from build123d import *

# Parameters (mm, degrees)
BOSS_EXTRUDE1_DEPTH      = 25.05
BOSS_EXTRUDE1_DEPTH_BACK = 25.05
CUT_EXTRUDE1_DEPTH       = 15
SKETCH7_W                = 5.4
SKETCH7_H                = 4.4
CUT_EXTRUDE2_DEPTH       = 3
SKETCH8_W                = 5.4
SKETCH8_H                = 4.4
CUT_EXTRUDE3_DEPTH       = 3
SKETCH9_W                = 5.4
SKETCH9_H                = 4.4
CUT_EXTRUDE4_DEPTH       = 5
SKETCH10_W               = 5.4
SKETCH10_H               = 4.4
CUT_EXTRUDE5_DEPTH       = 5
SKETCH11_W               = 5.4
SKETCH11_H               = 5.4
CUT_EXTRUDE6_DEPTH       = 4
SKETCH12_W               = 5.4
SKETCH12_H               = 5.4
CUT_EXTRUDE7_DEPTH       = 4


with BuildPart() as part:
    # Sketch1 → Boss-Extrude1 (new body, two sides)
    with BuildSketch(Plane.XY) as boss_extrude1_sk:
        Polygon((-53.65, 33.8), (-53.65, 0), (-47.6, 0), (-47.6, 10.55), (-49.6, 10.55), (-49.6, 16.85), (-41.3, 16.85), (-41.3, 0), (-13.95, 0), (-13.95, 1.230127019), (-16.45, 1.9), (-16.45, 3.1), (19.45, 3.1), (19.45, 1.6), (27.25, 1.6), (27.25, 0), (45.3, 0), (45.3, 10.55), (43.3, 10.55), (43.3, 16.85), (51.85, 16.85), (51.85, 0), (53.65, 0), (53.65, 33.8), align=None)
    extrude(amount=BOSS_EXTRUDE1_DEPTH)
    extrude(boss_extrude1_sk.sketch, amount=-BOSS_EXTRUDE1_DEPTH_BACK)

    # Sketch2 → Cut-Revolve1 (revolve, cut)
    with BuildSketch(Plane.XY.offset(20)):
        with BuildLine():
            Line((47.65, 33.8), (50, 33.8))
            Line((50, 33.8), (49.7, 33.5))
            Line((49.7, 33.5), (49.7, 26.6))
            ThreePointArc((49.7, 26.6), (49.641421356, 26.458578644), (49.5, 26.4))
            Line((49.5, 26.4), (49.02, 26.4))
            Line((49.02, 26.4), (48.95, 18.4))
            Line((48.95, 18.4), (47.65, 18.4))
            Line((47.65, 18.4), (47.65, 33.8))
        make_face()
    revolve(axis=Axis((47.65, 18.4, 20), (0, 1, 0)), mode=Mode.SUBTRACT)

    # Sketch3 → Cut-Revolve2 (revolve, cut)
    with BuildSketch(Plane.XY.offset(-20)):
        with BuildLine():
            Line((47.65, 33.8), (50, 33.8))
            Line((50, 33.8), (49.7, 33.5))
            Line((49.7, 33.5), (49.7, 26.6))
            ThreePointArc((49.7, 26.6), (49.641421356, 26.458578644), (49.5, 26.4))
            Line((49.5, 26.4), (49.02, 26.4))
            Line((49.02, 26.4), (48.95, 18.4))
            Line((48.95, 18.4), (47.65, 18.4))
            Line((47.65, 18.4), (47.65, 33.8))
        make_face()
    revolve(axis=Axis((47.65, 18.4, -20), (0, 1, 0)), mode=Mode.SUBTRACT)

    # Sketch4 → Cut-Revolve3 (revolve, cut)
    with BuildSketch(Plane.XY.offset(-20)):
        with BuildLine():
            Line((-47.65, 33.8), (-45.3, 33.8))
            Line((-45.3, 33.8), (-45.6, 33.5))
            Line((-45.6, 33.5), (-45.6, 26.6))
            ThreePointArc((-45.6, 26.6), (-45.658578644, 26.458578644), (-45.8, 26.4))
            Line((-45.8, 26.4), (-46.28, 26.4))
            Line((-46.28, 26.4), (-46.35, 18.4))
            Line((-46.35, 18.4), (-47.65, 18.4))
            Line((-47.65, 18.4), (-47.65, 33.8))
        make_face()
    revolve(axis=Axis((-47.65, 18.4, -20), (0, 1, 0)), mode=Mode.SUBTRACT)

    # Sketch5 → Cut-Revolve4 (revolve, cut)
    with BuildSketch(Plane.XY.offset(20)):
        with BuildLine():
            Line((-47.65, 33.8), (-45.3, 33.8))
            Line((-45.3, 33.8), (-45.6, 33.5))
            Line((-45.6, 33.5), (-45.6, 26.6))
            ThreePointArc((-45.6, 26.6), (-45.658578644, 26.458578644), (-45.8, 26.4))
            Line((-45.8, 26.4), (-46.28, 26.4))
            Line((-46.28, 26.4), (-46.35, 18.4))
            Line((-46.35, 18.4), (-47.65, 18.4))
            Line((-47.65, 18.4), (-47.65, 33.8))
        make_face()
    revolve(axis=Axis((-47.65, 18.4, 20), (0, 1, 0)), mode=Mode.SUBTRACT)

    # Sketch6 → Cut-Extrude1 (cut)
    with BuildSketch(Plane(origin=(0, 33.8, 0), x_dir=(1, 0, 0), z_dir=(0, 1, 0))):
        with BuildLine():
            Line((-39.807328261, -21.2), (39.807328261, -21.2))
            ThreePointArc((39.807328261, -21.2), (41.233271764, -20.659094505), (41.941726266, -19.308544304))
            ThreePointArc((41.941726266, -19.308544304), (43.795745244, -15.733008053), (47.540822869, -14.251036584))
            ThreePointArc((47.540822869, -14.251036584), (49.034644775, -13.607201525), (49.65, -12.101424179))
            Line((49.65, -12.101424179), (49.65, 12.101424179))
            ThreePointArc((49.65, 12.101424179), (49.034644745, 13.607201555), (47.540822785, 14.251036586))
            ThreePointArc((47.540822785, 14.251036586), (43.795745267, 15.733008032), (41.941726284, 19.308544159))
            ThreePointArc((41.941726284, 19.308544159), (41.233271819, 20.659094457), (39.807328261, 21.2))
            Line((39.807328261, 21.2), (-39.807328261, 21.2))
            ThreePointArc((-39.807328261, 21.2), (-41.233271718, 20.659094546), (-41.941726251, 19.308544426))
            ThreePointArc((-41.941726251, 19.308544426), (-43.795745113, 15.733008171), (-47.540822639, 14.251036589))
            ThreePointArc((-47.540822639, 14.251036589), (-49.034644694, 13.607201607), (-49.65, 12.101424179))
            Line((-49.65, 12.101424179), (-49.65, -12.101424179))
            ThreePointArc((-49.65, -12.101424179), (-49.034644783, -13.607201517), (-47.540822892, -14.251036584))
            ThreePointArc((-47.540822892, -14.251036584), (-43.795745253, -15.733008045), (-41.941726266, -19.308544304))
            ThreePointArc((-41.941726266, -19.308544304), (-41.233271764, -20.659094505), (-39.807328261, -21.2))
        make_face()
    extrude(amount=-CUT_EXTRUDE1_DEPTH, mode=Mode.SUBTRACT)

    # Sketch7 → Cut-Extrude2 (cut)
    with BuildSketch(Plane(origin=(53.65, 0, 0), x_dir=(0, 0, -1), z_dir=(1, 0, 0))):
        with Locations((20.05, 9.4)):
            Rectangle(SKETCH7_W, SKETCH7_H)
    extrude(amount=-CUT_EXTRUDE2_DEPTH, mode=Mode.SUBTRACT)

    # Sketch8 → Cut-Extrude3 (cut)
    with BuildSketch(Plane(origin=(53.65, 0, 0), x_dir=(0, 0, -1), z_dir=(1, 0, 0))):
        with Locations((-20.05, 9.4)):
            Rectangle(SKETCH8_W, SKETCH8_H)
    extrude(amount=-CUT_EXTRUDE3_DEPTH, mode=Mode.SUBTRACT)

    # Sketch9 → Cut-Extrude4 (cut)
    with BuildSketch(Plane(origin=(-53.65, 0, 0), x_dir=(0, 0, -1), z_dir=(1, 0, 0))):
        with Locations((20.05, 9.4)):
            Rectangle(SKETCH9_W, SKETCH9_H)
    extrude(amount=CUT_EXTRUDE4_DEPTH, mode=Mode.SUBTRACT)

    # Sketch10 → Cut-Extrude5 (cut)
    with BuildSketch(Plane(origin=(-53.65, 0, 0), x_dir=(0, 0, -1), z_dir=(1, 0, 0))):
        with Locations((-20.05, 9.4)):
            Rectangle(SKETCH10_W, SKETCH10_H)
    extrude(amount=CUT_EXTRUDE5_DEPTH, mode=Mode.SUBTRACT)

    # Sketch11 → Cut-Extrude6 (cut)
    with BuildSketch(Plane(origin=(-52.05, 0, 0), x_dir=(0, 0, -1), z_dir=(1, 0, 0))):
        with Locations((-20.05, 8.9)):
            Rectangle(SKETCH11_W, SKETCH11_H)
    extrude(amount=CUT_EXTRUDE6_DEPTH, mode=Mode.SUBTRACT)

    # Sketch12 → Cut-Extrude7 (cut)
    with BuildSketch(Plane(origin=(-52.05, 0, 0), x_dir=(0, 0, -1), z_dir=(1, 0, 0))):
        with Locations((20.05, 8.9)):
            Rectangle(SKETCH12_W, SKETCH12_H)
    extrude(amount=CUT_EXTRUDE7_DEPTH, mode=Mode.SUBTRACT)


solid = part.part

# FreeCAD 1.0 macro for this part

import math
import FreeCAD as App
import Part
import Sketcher

V = App.Vector
Q = App.Units.Quantity

doc = App.newDocument("Part")
body = doc.addObject("PartDesign::Body", "Body")

# Sketch on XY plane
sketch1 = body.newObject("Sketcher::SketchObject", "Sketch")
sketch1.AttachmentSupport = (doc.getObject("XY_Plane"), [""])
sketch1.MapMode = "FlatFace"
sketch1.addGeometry([
    Part.LineSegment(V(-53.6, 33.8, 0), V(-53.6, 0, 0)),  # 0
    Part.LineSegment(V(-53.6, 0, 0), V(-47.6, 0, 0)),  # 1
    Part.LineSegment(V(-47.6, 0, 0), V(-47.6, 10.6, 0)),  # 2
    Part.LineSegment(V(-47.6, 10.6, 0), V(-49.6, 10.6, 0)),  # 3
    Part.LineSegment(V(-49.6, 10.6, 0), V(-49.6, 16.9, 0)),  # 4
    Part.LineSegment(V(-49.6, 16.9, 0), V(-41.3, 16.9, 0)),  # 5
    Part.LineSegment(V(-41.3, 16.9, 0), V(-41.3, 0, 0)),  # 6
    Part.LineSegment(V(-41.3, 0, 0), V(-13.9, 0, 0)),  # 7
    Part.LineSegment(V(-13.9, 0, 0), V(-13.9, 1.2, 0)),  # 8
    Part.LineSegment(V(-13.9, 1.2, 0), V(-16.4, 1.9, 0)),  # 9
    Part.LineSegment(V(-16.4, 1.9, 0), V(-16.4, 3.1, 0)),  # 10
    Part.LineSegment(V(-16.4, 3.1, 0), V(19.4, 3.1, 0)),  # 11
    Part.LineSegment(V(19.4, 3.1, 0), V(19.4, 1.6, 0)),  # 12
    Part.LineSegment(V(19.4, 1.6, 0), V(27.2, 1.6, 0)),  # 13
    Part.LineSegment(V(27.2, 1.6, 0), V(27.2, 0, 0)),  # 14
    Part.LineSegment(V(27.2, 0, 0), V(45.3, 0, 0)),  # 15
    Part.LineSegment(V(45.3, 0, 0), V(45.3, 10.6, 0)),  # 16
    Part.LineSegment(V(45.3, 10.6, 0), V(43.3, 10.6, 0)),  # 17
    Part.LineSegment(V(43.3, 10.6, 0), V(43.3, 16.9, 0)),  # 18
    Part.LineSegment(V(43.3, 16.9, 0), V(51.9, 16.9, 0)),  # 19
    Part.LineSegment(V(51.9, 16.9, 0), V(51.9, 0, 0)),  # 20
    Part.LineSegment(V(51.9, 0, 0), V(53.6, 0, 0)),  # 21
    Part.LineSegment(V(53.6, 0, 0), V(53.6, 33.8, 0)),  # 22
    Part.LineSegment(V(53.6, 33.8, 0), V(-53.6, 33.8, 0)),  # 23
], False)
sketch1.addConstraint([
    Sketcher.Constraint("Coincident", 0, 2, 1, 1),
    Sketcher.Constraint("Coincident", 1, 2, 2, 1),
    Sketcher.Constraint("Coincident", 2, 2, 3, 1),
    Sketcher.Constraint("Coincident", 3, 2, 4, 1),
    Sketcher.Constraint("Coincident", 4, 2, 5, 1),
    Sketcher.Constraint("Coincident", 5, 2, 6, 1),
    Sketcher.Constraint("Coincident", 6, 2, 7, 1),
    Sketcher.Constraint("Coincident", 7, 2, 8, 1),
    Sketcher.Constraint("Coincident", 8, 2, 9, 1),
    Sketcher.Constraint("Coincident", 9, 2, 10, 1),
    Sketcher.Constraint("Coincident", 10, 2, 11, 1),
    Sketcher.Constraint("Coincident", 11, 2, 12, 1),
    Sketcher.Constraint("Coincident", 12, 2, 13, 1),
    Sketcher.Constraint("Coincident", 13, 2, 14, 1),
    Sketcher.Constraint("Coincident", 14, 2, 15, 1),
    Sketcher.Constraint("Coincident", 15, 2, 16, 1),
    Sketcher.Constraint("Coincident", 16, 2, 17, 1),
    Sketcher.Constraint("Coincident", 17, 2, 18, 1),
    Sketcher.Constraint("Coincident", 18, 2, 19, 1),
    Sketcher.Constraint("Coincident", 19, 2, 20, 1),
    Sketcher.Constraint("Coincident", 20, 2, 21, 1),
    Sketcher.Constraint("Coincident", 21, 2, 22, 1),
    Sketcher.Constraint("Coincident", 22, 2, 23, 1),
    Sketcher.Constraint("Coincident", 23, 2, 0, 1),
    Sketcher.Constraint("Vertical", 0),
    Sketcher.Constraint("Horizontal", 1),
    Sketcher.Constraint("Vertical", 2),
    Sketcher.Constraint("Horizontal", 3),
    Sketcher.Constraint("Vertical", 4),
    Sketcher.Constraint("Horizontal", 5),
    Sketcher.Constraint("Vertical", 6),
    Sketcher.Constraint("Horizontal", 7),
    Sketcher.Constraint("Vertical", 8),
    Sketcher.Constraint("Vertical", 10),
    Sketcher.Constraint("Horizontal", 11),
    Sketcher.Constraint("Vertical", 12),
    Sketcher.Constraint("Horizontal", 13),
    Sketcher.Constraint("Vertical", 14),
    Sketcher.Constraint("Horizontal", 15),
    Sketcher.Constraint("Vertical", 16),
    Sketcher.Constraint("Horizontal", 17),
    Sketcher.Constraint("Vertical", 18),
    Sketcher.Constraint("Horizontal", 19),
    Sketcher.Constraint("Vertical", 20),
    Sketcher.Constraint("Horizontal", 21),
    Sketcher.Constraint("Vertical", 22),
    Sketcher.Constraint("Horizontal", 23),
    Sketcher.Constraint("Symmetric", 0, 2, 21, 2, -1, 1),
    Sketcher.Constraint("PointOnObject", 0, 2, -1),
    Sketcher.Constraint("PointOnObject", 6, 2, -1),
    Sketcher.Constraint("PointOnObject", 14, 2, -1),
    Sketcher.Constraint("Horizontal", 3, 2, 16, 2),
    Sketcher.Constraint("Horizontal", 5, 2, 18, 2),
    Sketcher.Constraint("Equal", 3, 17),
    Sketcher.Constraint("DistanceX", 3, 2, 3, 1, 2.0),
    Sketcher.Constraint("Angle", 9, Q("165 deg")),
    Sketcher.Constraint("DistanceX", 5, 1, 5, 2, 8.3),
    Sketcher.Constraint("DistanceX", 11, 1, 11, 2, 35.9),
    Sketcher.Constraint("DistanceX", 13, 1, 13, 2, 7.8),
    Sketcher.Constraint("DistanceX", 21, 1, 21, 2, 1.8),
    Sketcher.Constraint("DistanceX", 23, 2, 23, 1, 107.3),
    Sketcher.Constraint("DistanceY", 0, 2, 0, 1, 33.8),
    Sketcher.Constraint("DistanceY", 4, 1, 4, 2, 6.3),
    Sketcher.Constraint("DistanceY", 10, 1, 10, 2, 1.2),
    Sketcher.Constraint("DistanceY", 12, 2, 12, 1, 1.5),
    Sketcher.Constraint("DistanceY", 14, 2, 14, 1, 1.6),
    Sketcher.Constraint("DistanceX", 1, 1, 1, 2, 6.05),
    Sketcher.Constraint("DistanceX", 7, 1, 7, 2, 27.35),
    Sketcher.Constraint("DistanceX", 15, 1, 15, 2, 18.05),
    Sketcher.Constraint("DistanceX", 19, 1, 19, 2, 8.55),
    Sketcher.Constraint("DistanceY", 2, 1, 2, 2, 10.55),
])
pad1 = body.newObject("PartDesign::Pad", "Pad")
pad1.Profile = sketch1
pad1.Type = "TwoLengths"
pad1.Length = 25.05
pad1.Length2 = 25.05

# Sketch on XY plane
sketch2 = body.newObject("Sketcher::SketchObject", "Sketch001")
sketch2.AttachmentSupport = (doc.getObject("XY_Plane"), [""])
sketch2.MapMode = "FlatFace"
sketch2.AttachmentOffset = App.Placement(V(0, 0, 20), App.Rotation())
sketch2.addGeometry([
    Part.LineSegment(V(50, 33.8, 0), V(47.65, 33.8, 0)),  # 0
    Part.LineSegment(V(47.65, 33.8, 0), V(47.65, 18.4, 0)),  # 1
    Part.LineSegment(V(47.65, 18.4, 0), V(48.95, 18.4, 0)),  # 2
    Part.LineSegment(V(48.95, 18.4, 0), V(49.02, 26.4, 0)),  # 3
    Part.LineSegment(V(49.02, 26.4, 0), V(49.5, 26.4, 0)),  # 4
    Part.ArcOfCircle(Part.Circle(V(49.5, 26.6, 0), V(0, 0, 1), 0.2), math.radians(-90), math.radians(0)),  # 5
    Part.LineSegment(V(49.7, 26.6, 0), V(49.7, 33.5, 0)),  # 6
    Part.LineSegment(V(49.7, 33.5, 0), V(50, 33.8, 0)),  # 7
], False)
sketch2.addGeometry(Part.LineSegment(V(47.65, 18.4, 0), V(47.65, 33.8, 0)), True)  # axis
sketch2.addConstraint([
    Sketcher.Constraint("Coincident", 0, 2, 1, 1),
    Sketcher.Constraint("Coincident", 1, 2, 2, 1),
    Sketcher.Constraint("Coincident", 2, 2, 3, 1),
    Sketcher.Constraint("Coincident", 3, 2, 4, 1),
    Sketcher.Constraint("Tangent", 4, 2, 5, 1),
    Sketcher.Constraint("Tangent", 5, 2, 6, 1),
    Sketcher.Constraint("Coincident", 6, 2, 7, 1),
    Sketcher.Constraint("Coincident", 7, 2, 0, 1),
    Sketcher.Constraint("Horizontal", 0),
    Sketcher.Constraint("Vertical", 1),
    Sketcher.Constraint("Horizontal", 2),
    Sketcher.Constraint("Horizontal", 4),
    Sketcher.Constraint("Vertical", 6),
    Sketcher.Constraint("Vertical", 8),
    Sketcher.Constraint("Coincident", 8, 1, 1, 2),
    Sketcher.Constraint("Horizontal", 7, 2, 8, 2),
    Sketcher.Constraint("Radius", 5, 0.2),
    Sketcher.Constraint("Angle", 7, Q("45 deg")),
    Sketcher.Constraint("DistanceX", 2, 1, 2, 2, 1.3),
    Sketcher.Constraint("DistanceY", 1, 2, 1, 1, 15.4),
    Sketcher.Constraint("DistanceY", 6, 1, 6, 2, 6.9),
    Sketcher.Constraint("DistanceX", -1, 1, 7, 2, 50.0),
    Sketcher.Constraint("DistanceY", 2, 2, 3, 2, 8.0),
    Sketcher.Constraint("DistanceX", 0, 2, 0, 1, 2.35),
    Sketcher.Constraint("DistanceX", 4, 1, 4, 2, 0.48),
    Sketcher.Constraint("DistanceY", -1, 1, 5, 3, 26.6),
])
groove = body.newObject("PartDesign::Groove", "Groove")
groove.Profile = sketch2
groove.ReferenceAxis = (sketch2, ["Axis0"])
groove.Angle = 360

# Sketch on XY plane
sketch3 = body.newObject("Sketcher::SketchObject", "Sketch002")
sketch3.AttachmentSupport = (doc.getObject("XY_Plane"), [""])
sketch3.MapMode = "FlatFace"
sketch3.AttachmentOffset = App.Placement(V(0, 0, -20), App.Rotation())
sketch3.addGeometry([
    Part.LineSegment(V(50, 33.8, 0), V(47.65, 33.8, 0)),  # 0
    Part.LineSegment(V(47.65, 33.8, 0), V(47.65, 18.4, 0)),  # 1
    Part.LineSegment(V(47.65, 18.4, 0), V(48.95, 18.4, 0)),  # 2
    Part.LineSegment(V(48.95, 18.4, 0), V(49.02, 26.4, 0)),  # 3
    Part.LineSegment(V(49.02, 26.4, 0), V(49.5, 26.4, 0)),  # 4
    Part.ArcOfCircle(Part.Circle(V(49.5, 26.6, 0), V(0, 0, 1), 0.2), math.radians(-90), math.radians(0)),  # 5
    Part.LineSegment(V(49.7, 26.6, 0), V(49.7, 33.5, 0)),  # 6
    Part.LineSegment(V(49.7, 33.5, 0), V(50, 33.8, 0)),  # 7
], False)
sketch3.addGeometry(Part.LineSegment(V(47.65, 18.4, 0), V(47.65, 33.8, 0)), True)  # axis
sketch3.addConstraint([
    Sketcher.Constraint("Coincident", 0, 2, 1, 1),
    Sketcher.Constraint("Coincident", 1, 2, 2, 1),
    Sketcher.Constraint("Coincident", 2, 2, 3, 1),
    Sketcher.Constraint("Coincident", 3, 2, 4, 1),
    Sketcher.Constraint("Tangent", 4, 2, 5, 1),
    Sketcher.Constraint("Tangent", 5, 2, 6, 1),
    Sketcher.Constraint("Coincident", 6, 2, 7, 1),
    Sketcher.Constraint("Coincident", 7, 2, 0, 1),
    Sketcher.Constraint("Horizontal", 0),
    Sketcher.Constraint("Vertical", 1),
    Sketcher.Constraint("Horizontal", 2),
    Sketcher.Constraint("Horizontal", 4),
    Sketcher.Constraint("Vertical", 6),
    Sketcher.Constraint("Vertical", 8),
    Sketcher.Constraint("Coincident", 8, 1, 1, 2),
    Sketcher.Constraint("Horizontal", 7, 2, 8, 2),
    Sketcher.Constraint("Radius", 5, 0.2),
    Sketcher.Constraint("Angle", 7, Q("45 deg")),
    Sketcher.Constraint("DistanceX", 2, 1, 2, 2, 1.3),
    Sketcher.Constraint("DistanceY", 1, 2, 1, 1, 15.4),
    Sketcher.Constraint("DistanceY", 6, 1, 6, 2, 6.9),
    Sketcher.Constraint("DistanceX", -1, 1, 7, 2, 50.0),
    Sketcher.Constraint("DistanceY", 2, 2, 3, 2, 8.0),
    Sketcher.Constraint("DistanceX", 0, 2, 0, 1, 2.35),
    Sketcher.Constraint("DistanceX", 4, 1, 4, 2, 0.48),
    Sketcher.Constraint("DistanceY", -1, 1, 5, 3, 26.6),
])
groove2 = body.newObject("PartDesign::Groove", "Groove001")
groove2.Profile = sketch3
groove2.ReferenceAxis = (sketch3, ["Axis0"])
groove2.Angle = 360

# Sketch on XY plane
sketch4 = body.newObject("Sketcher::SketchObject", "Sketch003")
sketch4.AttachmentSupport = (doc.getObject("XY_Plane"), [""])
sketch4.MapMode = "FlatFace"
sketch4.AttachmentOffset = App.Placement(V(0, 0, -20), App.Rotation())
sketch4.addGeometry([
    Part.LineSegment(V(-45.3, 33.8, 0), V(-47.65, 33.8, 0)),  # 0
    Part.LineSegment(V(-47.65, 33.8, 0), V(-47.65, 18.4, 0)),  # 1
    Part.LineSegment(V(-47.65, 18.4, 0), V(-46.35, 18.4, 0)),  # 2
    Part.LineSegment(V(-46.35, 18.4, 0), V(-46.28, 26.4, 0)),  # 3
    Part.LineSegment(V(-46.28, 26.4, 0), V(-45.8, 26.4, 0)),  # 4
    Part.ArcOfCircle(Part.Circle(V(-45.8, 26.6, 0), V(0, 0, 1), 0.2), math.radians(-90), math.radians(0)),  # 5
    Part.LineSegment(V(-45.6, 26.6, 0), V(-45.6, 33.5, 0)),  # 6
    Part.LineSegment(V(-45.6, 33.5, 0), V(-45.3, 33.8, 0)),  # 7
], False)
sketch4.addGeometry(Part.LineSegment(V(-47.65, 18.4, 0), V(-47.65, 33.8, 0)), True)  # axis
sketch4.addConstraint([
    Sketcher.Constraint("Coincident", 0, 2, 1, 1),
    Sketcher.Constraint("Coincident", 1, 2, 2, 1),
    Sketcher.Constraint("Coincident", 2, 2, 3, 1),
    Sketcher.Constraint("Coincident", 3, 2, 4, 1),
    Sketcher.Constraint("Tangent", 4, 2, 5, 1),
    Sketcher.Constraint("Tangent", 5, 2, 6, 1),
    Sketcher.Constraint("Coincident", 6, 2, 7, 1),
    Sketcher.Constraint("Coincident", 7, 2, 0, 1),
    Sketcher.Constraint("Horizontal", 0),
    Sketcher.Constraint("Vertical", 1),
    Sketcher.Constraint("Horizontal", 2),
    Sketcher.Constraint("Horizontal", 4),
    Sketcher.Constraint("Vertical", 6),
    Sketcher.Constraint("Vertical", 8),
    Sketcher.Constraint("Coincident", 8, 1, 1, 2),
    Sketcher.Constraint("Horizontal", 7, 2, 8, 2),
    Sketcher.Constraint("Radius", 5, 0.2),
    Sketcher.Constraint("Angle", 7, Q("45 deg")),
    Sketcher.Constraint("DistanceX", 2, 1, 2, 2, 1.3),
    Sketcher.Constraint("DistanceY", 1, 2, 1, 1, 15.4),
    Sketcher.Constraint("DistanceY", 6, 1, 6, 2, 6.9),
    Sketcher.Constraint("DistanceY", 2, 2, 3, 2, 8.0),
    Sketcher.Constraint("DistanceX", 0, 2, 0, 1, 2.35),
    Sketcher.Constraint("DistanceX", 4, 1, 4, 2, 0.48),
    Sketcher.Constraint("DistanceX", 5, 3, -1, 1, 45.8),
    Sketcher.Constraint("DistanceY", -1, 1, 5, 3, 26.6),
])
groove3 = body.newObject("PartDesign::Groove", "Groove002")
groove3.Profile = sketch4
groove3.ReferenceAxis = (sketch4, ["Axis0"])
groove3.Angle = 360

# Sketch on XY plane
sketch5 = body.newObject("Sketcher::SketchObject", "Sketch004")
sketch5.AttachmentSupport = (doc.getObject("XY_Plane"), [""])
sketch5.MapMode = "FlatFace"
sketch5.AttachmentOffset = App.Placement(V(0, 0, 20), App.Rotation())
sketch5.addGeometry([
    Part.LineSegment(V(-45.3, 33.8, 0), V(-47.65, 33.8, 0)),  # 0
    Part.LineSegment(V(-47.65, 33.8, 0), V(-47.65, 18.4, 0)),  # 1
    Part.LineSegment(V(-47.65, 18.4, 0), V(-46.35, 18.4, 0)),  # 2
    Part.LineSegment(V(-46.35, 18.4, 0), V(-46.28, 26.4, 0)),  # 3
    Part.LineSegment(V(-46.28, 26.4, 0), V(-45.8, 26.4, 0)),  # 4
    Part.ArcOfCircle(Part.Circle(V(-45.8, 26.6, 0), V(0, 0, 1), 0.2), math.radians(-90), math.radians(0)),  # 5
    Part.LineSegment(V(-45.6, 26.6, 0), V(-45.6, 33.5, 0)),  # 6
    Part.LineSegment(V(-45.6, 33.5, 0), V(-45.3, 33.8, 0)),  # 7
], False)
sketch5.addGeometry(Part.LineSegment(V(-47.65, 18.4, 0), V(-47.65, 33.8, 0)), True)  # axis
sketch5.addConstraint([
    Sketcher.Constraint("Coincident", 0, 2, 1, 1),
    Sketcher.Constraint("Coincident", 1, 2, 2, 1),
    Sketcher.Constraint("Coincident", 2, 2, 3, 1),
    Sketcher.Constraint("Coincident", 3, 2, 4, 1),
    Sketcher.Constraint("Tangent", 4, 2, 5, 1),
    Sketcher.Constraint("Tangent", 5, 2, 6, 1),
    Sketcher.Constraint("Coincident", 6, 2, 7, 1),
    Sketcher.Constraint("Coincident", 7, 2, 0, 1),
    Sketcher.Constraint("Horizontal", 0),
    Sketcher.Constraint("Vertical", 1),
    Sketcher.Constraint("Horizontal", 2),
    Sketcher.Constraint("Horizontal", 4),
    Sketcher.Constraint("Vertical", 6),
    Sketcher.Constraint("Vertical", 8),
    Sketcher.Constraint("Coincident", 8, 1, 1, 2),
    Sketcher.Constraint("Horizontal", 7, 2, 8, 2),
    Sketcher.Constraint("Radius", 5, 0.2),
    Sketcher.Constraint("Angle", 7, Q("45 deg")),
    Sketcher.Constraint("DistanceX", 2, 1, 2, 2, 1.3),
    Sketcher.Constraint("DistanceY", 1, 2, 1, 1, 15.4),
    Sketcher.Constraint("DistanceY", 6, 1, 6, 2, 6.9),
    Sketcher.Constraint("DistanceY", 2, 2, 3, 2, 8.0),
    Sketcher.Constraint("DistanceX", 0, 2, 0, 1, 2.35),
    Sketcher.Constraint("DistanceX", 4, 1, 4, 2, 0.48),
    Sketcher.Constraint("DistanceX", 5, 3, -1, 1, 45.8),
    Sketcher.Constraint("DistanceY", -1, 1, 5, 3, 26.6),
])
groove4 = body.newObject("PartDesign::Groove", "Groove003")
groove4.Profile = sketch5
groove4.ReferenceAxis = (sketch5, ["Axis0"])
groove4.Angle = 360

# Sketch on XZ plane
sketch6 = body.newObject("Sketcher::SketchObject", "Sketch005")
sketch6.AttachmentSupport = (doc.getObject("XZ_Plane"), [""])
sketch6.MapMode = "FlatFace"
sketch6.AttachmentOffset = App.Placement(V(0, 0, -33.8), App.Rotation())
sketch6.addGeometry([
    Part.LineSegment(V(-39.8, 21.2, 0), V(39.8, 21.2, 0)),  # 0
    Part.ArcOfCircle(Part.Circle(V(39.8, 19, 0), V(0, 0, 1), 2.2), math.radians(7), math.radians(90)),  # 1
    Part.ArcOfCircle(Part.Circle(V(47.7, 20, 0), V(0, 0, 1), 5.8), math.radians(-173), math.radians(-91)),  # 2
    Part.ArcOfCircle(Part.Circle(V(47.5, 12.1, 0), V(0, 0, 1), 2.1), math.radians(0), math.radians(89)),  # 3
    Part.LineSegment(V(49.6, 12.1, 0), V(49.6, -12.1, 0)),  # 4
    Part.ArcOfCircle(Part.Circle(V(47.5, -12.1, 0), V(0, 0, 1), 2.1), math.radians(-89), math.radians(0)),  # 5
    Part.ArcOfCircle(Part.Circle(V(47.6, -20, 0), V(0, 0, 1), 5.7), math.radians(91), math.radians(173)),  # 6
    Part.ArcOfCircle(Part.Circle(V(39.8, -19.1, 0), V(0, 0, 1), 2.1), math.radians(-90), math.radians(-7)),  # 7
    Part.LineSegment(V(39.8, -21.2, 0), V(-39.8, -21.2, 0)),  # 8
    Part.ArcOfCircle(Part.Circle(V(-39.8, -19.1, 0), V(0, 0, 1), 2.1), math.radians(-173), math.radians(-90)),  # 9
    Part.ArcOfCircle(Part.Circle(V(-47.6, -20, 0), V(0, 0, 1), 5.8), math.radians(7), math.radians(89)),  # 10
    Part.ArcOfCircle(Part.Circle(V(-47.5, -12.1, 0), V(0, 0, 1), 2.2), math.radians(180), math.radians(269)),  # 11
    Part.LineSegment(V(-49.6, -12.1, 0), V(-49.6, 12.1, 0)),  # 12
    Part.ArcOfCircle(Part.Circle(V(-47.5, 12.1, 0), V(0, 0, 1), 2.1), math.radians(91), math.radians(180)),  # 13
    Part.ArcOfCircle(Part.Circle(V(-47.6, 20, 0), V(0, 0, 1), 5.8), math.radians(-89), math.radians(-7)),  # 14
    Part.ArcOfCircle(Part.Circle(V(-39.8, 19, 0), V(0, 0, 1), 2.2), math.radians(90), math.radians(173)),  # 15
], False)
sketch6.addConstraint([
    Sketcher.Constraint("Tangent", 0, 2, 1, 2),
    Sketcher.Constraint("Tangent", 1, 1, 2, 1),
    Sketcher.Constraint("Tangent", 2, 2, 3, 2),
    Sketcher.Constraint("Tangent", 3, 1, 4, 1),
    Sketcher.Constraint("Tangent", 4, 2, 5, 2),
    Sketcher.Constraint("Tangent", 5, 1, 6, 1),
    Sketcher.Constraint("Tangent", 6, 2, 7, 2),
    Sketcher.Constraint("Tangent", 7, 1, 8, 1),
    Sketcher.Constraint("Tangent", 8, 2, 9, 2),
    Sketcher.Constraint("Tangent", 9, 1, 10, 1),
    Sketcher.Constraint("Tangent", 10, 2, 11, 2),
    Sketcher.Constraint("Tangent", 11, 1, 12, 1),
    Sketcher.Constraint("Tangent", 12, 2, 13, 2),
    Sketcher.Constraint("Tangent", 13, 1, 14, 1),
    Sketcher.Constraint("Tangent", 14, 2, 15, 2),
    Sketcher.Constraint("Tangent", 15, 1, 0, 1),
    Sketcher.Constraint("Horizontal", 0),
    Sketcher.Constraint("Vertical", 4),
    Sketcher.Constraint("Horizontal", 8),
    Sketcher.Constraint("Vertical", 12),
    Sketcher.Constraint("Equal", 1, 3),
    Sketcher.Constraint("Equal", 3, 5),
    Sketcher.Constraint("Equal", 2, 6),
    Sketcher.Constraint("Equal", 5, 7),
    Sketcher.Constraint("Equal", 7, 9),
    Sketcher.Constraint("Equal", 6, 10),
    Sketcher.Constraint("Equal", 9, 11),
    Sketcher.Constraint("Equal", 11, 13),
    Sketcher.Constraint("Equal", 10, 14),
    Sketcher.Constraint("Equal", 13, 15),
    Sketcher.Constraint("Symmetric", 1, 3, 9, 3, -1, 1),
    Sketcher.Constraint("Symmetric", 3, 3, 11, 3, -1, 1),
    Sketcher.Constraint("Symmetric", 6, 3, 14, 3, -1, 1),
    Sketcher.Constraint("Symmetric", 6, 3, 10, 3, -2),
    Sketcher.Constraint("Radius", 1, 2.15),
    Sketcher.Constraint("Radius", 2, 5.75),
    Sketcher.Constraint("DistanceY", -1, 1, 2, 3, 20.0),
    Sketcher.Constraint("DistanceX", 11, 3, 5, 3, 95.0),
    Sketcher.Constraint("DistanceX", 2, 3, 3, 1, 2.0),
    Sketcher.Constraint("DistanceY", -1, 1, 0, 2, 21.2),
])
pocket1 = body.newObject("PartDesign::Pocket", "Pocket")
pocket1.Profile = sketch6
pocket1.Length = 15
pocket1.Reversed = True

# Sketch on YZ plane
sketch7 = body.newObject("Sketcher::SketchObject", "Sketch006")
sketch7.AttachmentSupport = (doc.getObject("YZ_Plane"), [""])
sketch7.MapMode = "FlatFace"
sketch7.AttachmentOffset = App.Placement(V(0, 0, 53.65), App.Rotation())
sketch7.addGeometry([
    Part.LineSegment(V(11.6, -17.4, 0), V(7.2, -17.4, 0)),
    Part.LineSegment(V(7.2, -17.4, 0), V(7.2, -22.8, 0)),
    Part.LineSegment(V(7.2, -22.8, 0), V(11.6, -22.8, 0)),
    Part.LineSegment(V(11.6, -22.8, 0), V(11.6, -17.4, 0)),
], False)
sketch7.addConstraint([
    Sketcher.Constraint("Coincident", 0, 2, 1, 1),
    Sketcher.Constraint("Coincident", 1, 2, 2, 1),
    Sketcher.Constraint("Coincident", 2, 2, 3, 1),
    Sketcher.Constraint("Coincident", 3, 2, 0, 1),
    Sketcher.Constraint("Horizontal", 0),
    Sketcher.Constraint("Vertical", 1),
    Sketcher.Constraint("Horizontal", 2),
    Sketcher.Constraint("Vertical", 3),
    Sketcher.Constraint("DistanceX", 0, 2, 0, 1, 4.4),
    Sketcher.Constraint("DistanceY", 1, 2, 1, 1, 5.4),
    Sketcher.Constraint("DistanceX", -1, 1, 0, 2, 7.2),
    Sketcher.Constraint("DistanceY", 0, 2, -1, 1, 17.35),
])
pocket2 = body.newObject("PartDesign::Pocket", "Pocket001")
pocket2.Profile = sketch7
pocket2.Length = 3

# Sketch on YZ plane
sketch8 = body.newObject("Sketcher::SketchObject", "Sketch007")
sketch8.AttachmentSupport = (doc.getObject("YZ_Plane"), [""])
sketch8.MapMode = "FlatFace"
sketch8.AttachmentOffset = App.Placement(V(0, 0, 53.65), App.Rotation())
sketch8.addGeometry([
    Part.LineSegment(V(11.6, 22.8, 0), V(7.2, 22.8, 0)),
    Part.LineSegment(V(7.2, 22.8, 0), V(7.2, 17.4, 0)),
    Part.LineSegment(V(7.2, 17.4, 0), V(11.6, 17.4, 0)),
    Part.LineSegment(V(11.6, 17.4, 0), V(11.6, 22.8, 0)),
], False)
sketch8.addConstraint([
    Sketcher.Constraint("Coincident", 0, 2, 1, 1),
    Sketcher.Constraint("Coincident", 1, 2, 2, 1),
    Sketcher.Constraint("Coincident", 2, 2, 3, 1),
    Sketcher.Constraint("Coincident", 3, 2, 0, 1),
    Sketcher.Constraint("Horizontal", 0),
    Sketcher.Constraint("Vertical", 1),
    Sketcher.Constraint("Horizontal", 2),
    Sketcher.Constraint("Vertical", 3),
    Sketcher.Constraint("DistanceX", 0, 2, 0, 1, 4.4),
    Sketcher.Constraint("DistanceY", 1, 2, 1, 1, 5.4),
    Sketcher.Constraint("DistanceX", -1, 1, 0, 2, 7.2),
    Sketcher.Constraint("DistanceY", -1, 1, 0, 2, 22.75),
])
pocket3 = body.newObject("PartDesign::Pocket", "Pocket002")
pocket3.Profile = sketch8
pocket3.Length = 3

# Sketch on YZ plane
sketch9 = body.newObject("Sketcher::SketchObject", "Sketch008")
sketch9.AttachmentSupport = (doc.getObject("YZ_Plane"), [""])
sketch9.MapMode = "FlatFace"
sketch9.AttachmentOffset = App.Placement(V(0, 0, -53.65), App.Rotation())
sketch9.addGeometry([
    Part.LineSegment(V(11.6, -17.4, 0), V(7.2, -17.4, 0)),
    Part.LineSegment(V(7.2, -17.4, 0), V(7.2, -22.8, 0)),
    Part.LineSegment(V(7.2, -22.8, 0), V(11.6, -22.8, 0)),
    Part.LineSegment(V(11.6, -22.8, 0), V(11.6, -17.4, 0)),
], False)
sketch9.addConstraint([
    Sketcher.Constraint("Coincident", 0, 2, 1, 1),
    Sketcher.Constraint("Coincident", 1, 2, 2, 1),
    Sketcher.Constraint("Coincident", 2, 2, 3, 1),
    Sketcher.Constraint("Coincident", 3, 2, 0, 1),
    Sketcher.Constraint("Horizontal", 0),
    Sketcher.Constraint("Vertical", 1),
    Sketcher.Constraint("Horizontal", 2),
    Sketcher.Constraint("Vertical", 3),
    Sketcher.Constraint("DistanceX", 0, 2, 0, 1, 4.4),
    Sketcher.Constraint("DistanceY", 1, 2, 1, 1, 5.4),
    Sketcher.Constraint("DistanceX", -1, 1, 0, 2, 7.2),
    Sketcher.Constraint("DistanceY", 0, 2, -1, 1, 17.35),
])
pocket4 = body.newObject("PartDesign::Pocket", "Pocket003")
pocket4.Profile = sketch9
pocket4.Length = 5
pocket4.Reversed = True

# Sketch on YZ plane
sketch10 = body.newObject("Sketcher::SketchObject", "Sketch009")
sketch10.AttachmentSupport = (doc.getObject("YZ_Plane"), [""])
sketch10.MapMode = "FlatFace"
sketch10.AttachmentOffset = App.Placement(V(0, 0, -53.65), App.Rotation())
sketch10.addGeometry([
    Part.LineSegment(V(11.6, 22.8, 0), V(7.2, 22.8, 0)),
    Part.LineSegment(V(7.2, 22.8, 0), V(7.2, 17.4, 0)),
    Part.LineSegment(V(7.2, 17.4, 0), V(11.6, 17.4, 0)),
    Part.LineSegment(V(11.6, 17.4, 0), V(11.6, 22.8, 0)),
], False)
sketch10.addConstraint([
    Sketcher.Constraint("Coincident", 0, 2, 1, 1),
    Sketcher.Constraint("Coincident", 1, 2, 2, 1),
    Sketcher.Constraint("Coincident", 2, 2, 3, 1),
    Sketcher.Constraint("Coincident", 3, 2, 0, 1),
    Sketcher.Constraint("Horizontal", 0),
    Sketcher.Constraint("Vertical", 1),
    Sketcher.Constraint("Horizontal", 2),
    Sketcher.Constraint("Vertical", 3),
    Sketcher.Constraint("DistanceX", 0, 2, 0, 1, 4.4),
    Sketcher.Constraint("DistanceY", 1, 2, 1, 1, 5.4),
    Sketcher.Constraint("DistanceX", -1, 1, 0, 2, 7.2),
    Sketcher.Constraint("DistanceY", -1, 1, 0, 2, 22.75),
])
pocket5 = body.newObject("PartDesign::Pocket", "Pocket004")
pocket5.Profile = sketch10
pocket5.Length = 5
pocket5.Reversed = True

# Sketch on YZ plane
sketch11 = body.newObject("Sketcher::SketchObject", "Sketch010")
sketch11.AttachmentSupport = (doc.getObject("YZ_Plane"), [""])
sketch11.MapMode = "FlatFace"
sketch11.AttachmentOffset = App.Placement(V(0, 0, -52.05), App.Rotation())
sketch11.addGeometry([
    Part.LineSegment(V(12, 23, 0), V(6, 23, 0)),
    Part.LineSegment(V(6, 23, 0), V(6, 17, 0)),
    Part.LineSegment(V(6, 17, 0), V(12, 17, 0)),
    Part.LineSegment(V(12, 17, 0), V(12, 23, 0)),
], False)
sketch11.addConstraint([
    Sketcher.Constraint("Coincident", 0, 2, 1, 1),
    Sketcher.Constraint("Coincident", 1, 2, 2, 1),
    Sketcher.Constraint("Coincident", 2, 2, 3, 1),
    Sketcher.Constraint("Coincident", 3, 2, 0, 1),
    Sketcher.Constraint("Horizontal", 0),
    Sketcher.Constraint("Vertical", 1),
    Sketcher.Constraint("Horizontal", 2),
    Sketcher.Constraint("Vertical", 3),
    Sketcher.Constraint("Equal", 2, 1),
    Sketcher.Constraint("DistanceX", 0, 2, 0, 1, 5.4),
    Sketcher.Constraint("DistanceX", -1, 1, 0, 2, 6.2),
    Sketcher.Constraint("DistanceY", -1, 1, 0, 2, 22.75),
])
pocket6 = body.newObject("PartDesign::Pocket", "Pocket005")
pocket6.Profile = sketch11
pocket6.Length = 4
pocket6.Reversed = True

# Sketch on YZ plane
sketch12 = body.newObject("Sketcher::SketchObject", "Sketch011")
sketch12.AttachmentSupport = (doc.getObject("YZ_Plane"), [""])
sketch12.MapMode = "FlatFace"
sketch12.AttachmentOffset = App.Placement(V(0, 0, -52.05), App.Rotation())
sketch12.addGeometry([
    Part.LineSegment(V(12, -17, 0), V(6, -17, 0)),
    Part.LineSegment(V(6, -17, 0), V(6, -23, 0)),
    Part.LineSegment(V(6, -23, 0), V(12, -23, 0)),
    Part.LineSegment(V(12, -23, 0), V(12, -17, 0)),
], False)
sketch12.addConstraint([
    Sketcher.Constraint("Coincident", 0, 2, 1, 1),
    Sketcher.Constraint("Coincident", 1, 2, 2, 1),
    Sketcher.Constraint("Coincident", 2, 2, 3, 1),
    Sketcher.Constraint("Coincident", 3, 2, 0, 1),
    Sketcher.Constraint("Horizontal", 0),
    Sketcher.Constraint("Vertical", 1),
    Sketcher.Constraint("Horizontal", 2),
    Sketcher.Constraint("Vertical", 3),
    Sketcher.Constraint("Equal", 2, 1),
    Sketcher.Constraint("DistanceX", 0, 2, 0, 1, 5.4),
    Sketcher.Constraint("DistanceX", -1, 1, 0, 2, 6.2),
    Sketcher.Constraint("DistanceY", 0, 2, -1, 1, 17.35),
])
pocket7 = body.newObject("PartDesign::Pocket", "Pocket006")
pocket7.Profile = sketch12
pocket7.Length = 4
pocket7.Reversed = True

doc.recompute()
